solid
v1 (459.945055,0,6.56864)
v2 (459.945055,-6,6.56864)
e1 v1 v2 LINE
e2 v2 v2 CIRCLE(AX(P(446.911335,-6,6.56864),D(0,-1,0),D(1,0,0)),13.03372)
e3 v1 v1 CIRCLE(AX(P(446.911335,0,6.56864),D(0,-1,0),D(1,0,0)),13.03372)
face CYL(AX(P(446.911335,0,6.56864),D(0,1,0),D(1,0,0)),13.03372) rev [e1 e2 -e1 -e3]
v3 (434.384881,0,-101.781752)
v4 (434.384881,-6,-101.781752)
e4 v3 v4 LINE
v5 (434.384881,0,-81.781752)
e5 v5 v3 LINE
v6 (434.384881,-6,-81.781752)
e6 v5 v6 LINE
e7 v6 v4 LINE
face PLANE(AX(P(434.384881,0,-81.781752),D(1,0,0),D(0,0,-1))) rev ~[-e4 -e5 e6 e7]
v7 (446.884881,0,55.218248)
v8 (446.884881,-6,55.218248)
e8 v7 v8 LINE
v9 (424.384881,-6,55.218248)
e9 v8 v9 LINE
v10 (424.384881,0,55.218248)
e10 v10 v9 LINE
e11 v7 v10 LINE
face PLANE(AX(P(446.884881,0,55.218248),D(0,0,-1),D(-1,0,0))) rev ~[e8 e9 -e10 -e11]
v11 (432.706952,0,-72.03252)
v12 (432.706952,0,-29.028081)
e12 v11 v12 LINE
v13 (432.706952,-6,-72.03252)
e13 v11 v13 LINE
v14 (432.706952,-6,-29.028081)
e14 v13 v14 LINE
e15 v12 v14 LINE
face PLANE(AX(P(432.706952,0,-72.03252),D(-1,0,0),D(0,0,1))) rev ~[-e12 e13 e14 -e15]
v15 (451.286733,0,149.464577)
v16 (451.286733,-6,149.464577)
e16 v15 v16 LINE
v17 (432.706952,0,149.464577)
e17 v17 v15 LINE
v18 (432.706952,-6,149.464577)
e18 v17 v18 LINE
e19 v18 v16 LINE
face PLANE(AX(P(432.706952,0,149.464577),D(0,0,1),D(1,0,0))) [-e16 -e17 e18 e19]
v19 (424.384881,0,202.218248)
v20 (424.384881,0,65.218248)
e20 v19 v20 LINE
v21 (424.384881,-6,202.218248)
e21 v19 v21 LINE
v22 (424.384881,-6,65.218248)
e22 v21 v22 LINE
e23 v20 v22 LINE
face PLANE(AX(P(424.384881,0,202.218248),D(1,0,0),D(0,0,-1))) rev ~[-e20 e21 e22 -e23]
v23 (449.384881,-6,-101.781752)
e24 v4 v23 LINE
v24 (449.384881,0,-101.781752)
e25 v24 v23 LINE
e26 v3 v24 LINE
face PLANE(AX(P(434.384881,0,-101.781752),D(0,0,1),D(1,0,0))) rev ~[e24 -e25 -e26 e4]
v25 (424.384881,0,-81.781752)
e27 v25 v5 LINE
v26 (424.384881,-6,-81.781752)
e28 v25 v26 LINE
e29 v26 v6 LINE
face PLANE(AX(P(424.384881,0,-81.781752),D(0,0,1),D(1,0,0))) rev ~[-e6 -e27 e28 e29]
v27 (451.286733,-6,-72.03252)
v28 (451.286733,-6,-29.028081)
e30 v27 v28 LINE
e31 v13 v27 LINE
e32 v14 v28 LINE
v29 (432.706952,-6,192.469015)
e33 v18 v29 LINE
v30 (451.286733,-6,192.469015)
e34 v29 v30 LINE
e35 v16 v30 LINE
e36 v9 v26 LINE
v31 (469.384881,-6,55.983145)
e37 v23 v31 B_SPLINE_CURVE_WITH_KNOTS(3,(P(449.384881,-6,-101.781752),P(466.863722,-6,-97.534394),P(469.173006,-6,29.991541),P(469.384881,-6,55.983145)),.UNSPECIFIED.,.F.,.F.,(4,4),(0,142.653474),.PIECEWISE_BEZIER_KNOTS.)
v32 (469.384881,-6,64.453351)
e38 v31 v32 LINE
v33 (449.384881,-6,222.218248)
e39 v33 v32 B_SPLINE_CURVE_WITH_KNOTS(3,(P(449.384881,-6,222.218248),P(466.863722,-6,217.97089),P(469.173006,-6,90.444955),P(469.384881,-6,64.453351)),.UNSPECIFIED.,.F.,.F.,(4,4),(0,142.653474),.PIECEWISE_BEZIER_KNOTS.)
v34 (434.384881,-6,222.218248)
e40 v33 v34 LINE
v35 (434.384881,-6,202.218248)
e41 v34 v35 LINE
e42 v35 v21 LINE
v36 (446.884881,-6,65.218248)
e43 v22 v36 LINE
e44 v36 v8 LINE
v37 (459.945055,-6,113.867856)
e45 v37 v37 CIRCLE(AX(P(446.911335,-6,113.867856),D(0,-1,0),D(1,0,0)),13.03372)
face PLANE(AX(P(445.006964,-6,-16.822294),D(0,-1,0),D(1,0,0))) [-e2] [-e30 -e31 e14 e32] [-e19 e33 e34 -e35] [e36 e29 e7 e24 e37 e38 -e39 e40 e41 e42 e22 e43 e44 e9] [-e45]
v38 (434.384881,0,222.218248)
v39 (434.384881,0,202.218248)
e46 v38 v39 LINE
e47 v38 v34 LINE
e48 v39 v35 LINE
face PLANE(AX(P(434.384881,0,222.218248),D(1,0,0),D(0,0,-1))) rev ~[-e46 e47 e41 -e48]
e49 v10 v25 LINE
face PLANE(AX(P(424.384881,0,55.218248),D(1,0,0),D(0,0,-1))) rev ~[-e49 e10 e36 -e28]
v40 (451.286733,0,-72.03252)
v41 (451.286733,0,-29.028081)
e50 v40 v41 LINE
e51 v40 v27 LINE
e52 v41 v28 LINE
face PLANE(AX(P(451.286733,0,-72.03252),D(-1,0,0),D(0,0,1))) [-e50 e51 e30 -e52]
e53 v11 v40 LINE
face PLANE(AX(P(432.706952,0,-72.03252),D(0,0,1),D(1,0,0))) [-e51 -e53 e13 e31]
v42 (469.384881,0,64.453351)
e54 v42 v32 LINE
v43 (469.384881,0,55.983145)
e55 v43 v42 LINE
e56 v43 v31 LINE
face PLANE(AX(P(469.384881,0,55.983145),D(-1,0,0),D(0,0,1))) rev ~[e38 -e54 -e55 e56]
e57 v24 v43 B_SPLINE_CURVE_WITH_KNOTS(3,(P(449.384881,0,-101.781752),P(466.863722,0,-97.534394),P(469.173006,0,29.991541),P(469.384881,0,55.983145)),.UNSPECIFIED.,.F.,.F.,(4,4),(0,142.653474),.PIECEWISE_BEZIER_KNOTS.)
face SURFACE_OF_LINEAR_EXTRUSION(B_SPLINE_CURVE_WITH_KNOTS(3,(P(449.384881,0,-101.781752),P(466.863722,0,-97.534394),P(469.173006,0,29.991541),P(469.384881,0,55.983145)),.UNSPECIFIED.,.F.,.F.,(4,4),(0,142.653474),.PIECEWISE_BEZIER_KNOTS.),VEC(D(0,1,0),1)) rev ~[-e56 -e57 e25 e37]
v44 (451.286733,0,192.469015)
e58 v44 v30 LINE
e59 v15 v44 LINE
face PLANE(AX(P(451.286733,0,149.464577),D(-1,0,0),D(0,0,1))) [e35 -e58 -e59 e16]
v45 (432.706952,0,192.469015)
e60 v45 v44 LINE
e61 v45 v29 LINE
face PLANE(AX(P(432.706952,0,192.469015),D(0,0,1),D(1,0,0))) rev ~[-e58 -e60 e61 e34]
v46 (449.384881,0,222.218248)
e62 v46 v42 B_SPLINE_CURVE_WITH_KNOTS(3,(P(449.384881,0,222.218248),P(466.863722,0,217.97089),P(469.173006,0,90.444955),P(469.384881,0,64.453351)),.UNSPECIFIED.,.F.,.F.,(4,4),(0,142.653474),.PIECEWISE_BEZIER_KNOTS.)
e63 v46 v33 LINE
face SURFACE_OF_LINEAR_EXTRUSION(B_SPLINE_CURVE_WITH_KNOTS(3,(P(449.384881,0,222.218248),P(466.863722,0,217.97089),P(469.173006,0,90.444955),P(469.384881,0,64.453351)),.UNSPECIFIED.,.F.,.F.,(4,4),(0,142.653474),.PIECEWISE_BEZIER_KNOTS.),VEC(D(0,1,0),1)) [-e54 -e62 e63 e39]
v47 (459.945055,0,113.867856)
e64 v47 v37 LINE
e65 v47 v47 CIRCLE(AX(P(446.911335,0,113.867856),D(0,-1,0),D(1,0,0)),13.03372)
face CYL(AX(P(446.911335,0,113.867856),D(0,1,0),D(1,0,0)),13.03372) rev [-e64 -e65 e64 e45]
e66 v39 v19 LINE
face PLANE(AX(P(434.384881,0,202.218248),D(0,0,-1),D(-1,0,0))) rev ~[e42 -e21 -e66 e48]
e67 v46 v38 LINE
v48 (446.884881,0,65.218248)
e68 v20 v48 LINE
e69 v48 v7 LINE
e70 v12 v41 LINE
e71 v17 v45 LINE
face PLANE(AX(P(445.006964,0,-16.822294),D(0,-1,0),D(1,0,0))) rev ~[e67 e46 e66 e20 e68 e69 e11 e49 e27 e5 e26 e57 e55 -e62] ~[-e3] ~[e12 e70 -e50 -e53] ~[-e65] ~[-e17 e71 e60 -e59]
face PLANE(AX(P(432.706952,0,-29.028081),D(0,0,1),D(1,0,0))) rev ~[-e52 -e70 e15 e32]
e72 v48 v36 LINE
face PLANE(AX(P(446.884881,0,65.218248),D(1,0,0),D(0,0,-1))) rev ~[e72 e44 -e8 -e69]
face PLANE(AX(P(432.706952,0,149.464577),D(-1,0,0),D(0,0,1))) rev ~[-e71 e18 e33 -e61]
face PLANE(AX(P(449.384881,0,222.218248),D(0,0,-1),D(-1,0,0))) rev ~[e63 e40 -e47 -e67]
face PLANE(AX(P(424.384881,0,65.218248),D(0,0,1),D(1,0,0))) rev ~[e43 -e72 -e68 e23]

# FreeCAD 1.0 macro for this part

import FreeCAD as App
import Part
import Sketcher

V = App.Vector
Q = App.Units.Quantity


def add_polygon(sketch, points):
    """Adds a closed chain of lines whose ends are joined by coincident constraints."""
    first, n = sketch.GeometryCount, len(points)
    for a, b in zip(points, points[1:] + points[:1]):
        sketch.addGeometry(Part.LineSegment(App.Vector(*a, 0), App.Vector(*b, 0)), False)
    for i in range(n):
        sketch.addConstraint(Sketcher.Constraint("Coincident", first + i, 2, first + (i + 1) % n, 1))

doc = App.newDocument("Part")
params = doc.addObject("Spreadsheet::Sheet", "Params")
for row, (alias, value) in enumerate([
    ("sketch1_width", "15 mm"),
    ("sketch1_width2", "10 mm"),
    ("sketch1_height", "20 mm"),
    ("sketch1_width3", "22.5 mm"),
    ("pad1_length", "6 mm"),
], start=1):
    params.set(f"A{row}", alias)
    params.set(f"B{row}", "=" + value)
    params.setAlias(f"B{row}", alias)

body = doc.addObject("PartDesign::Body", "Body")

# Sketch on XZ plane
sketch1 = body.newObject("Sketcher::SketchObject", "Sketch")
sketch1.AttachmentSupport = (doc.getObject("XZ_Plane"), [""])
sketch1.MapMode = "FlatFace"
sketch1.addGeometry(Part.LineSegment(V(469.384881, 55.983145, 0), V(469.384881, 64.453351, 0)), False)  # 0
sketch1.addGeometry(Part.BSplineCurve([V(449.384881, 222.218248, 0), V(466.863722, 217.97089, 0), V(469.173006, 90.444955, 0), V(469.384881, 64.453351, 0)], [4, 4], [0, 142.653474], False, 3, [1, 1, 1, 1], False), False)  # 1
sketch1.addGeometry(Part.LineSegment(V(449.384881, 222.218248, 0), V(434.384881, 222.218248, 0)), False)  # 2
sketch1.addGeometry(Part.LineSegment(V(434.384881, 222.218248, 0), V(434.384881, 202.218248, 0)), False)  # 3
sketch1.addGeometry(Part.LineSegment(V(434.384881, 202.218248, 0), V(424.384881, 202.218248, 0)), False)  # 4
sketch1.addGeometry(Part.LineSegment(V(424.384881, 202.218248, 0), V(424.384881, 65.218248, 0)), False)  # 5
sketch1.addGeometry(Part.LineSegment(V(424.384881, 65.218248, 0), V(446.884881, 65.218248, 0)), False)  # 6
sketch1.addGeometry(Part.LineSegment(V(446.884881, 65.218248, 0), V(446.884881, 55.218248, 0)), False)  # 7
sketch1.addGeometry(Part.LineSegment(V(446.884881, 55.218248, 0), V(424.384881, 55.218248, 0)), False)  # 8
sketch1.addGeometry(Part.LineSegment(V(424.384881, 55.218248, 0), V(424.384881, -81.781752, 0)), False)  # 9
sketch1.addGeometry(Part.LineSegment(V(424.384881, -81.781752, 0), V(434.384881, -81.781752, 0)), False)  # 10
sketch1.addGeometry(Part.LineSegment(V(434.384881, -81.781752, 0), V(434.384881, -101.781752, 0)), False)  # 11
sketch1.addGeometry(Part.LineSegment(V(434.384881, -101.781752, 0), V(449.384881, -101.781752, 0)), False)  # 12
sketch1.addGeometry(Part.BSplineCurve([V(449.384881, -101.781752, 0), V(466.863722, -97.534394, 0), V(469.173006, 29.991541, 0), V(469.384881, 55.983145, 0)], [4, 4], [0, 142.653474], False, 3, [1, 1, 1, 1], False), False)  # 13
add_polygon(sketch1, [(451.286733, -72.03252), (432.706952, -72.03252), (432.706952, -29.028081), (451.286733, -29.028081)])  # lines 14-17
sketch1.addGeometry(Part.Circle(V(446.911335, 6.56864, 0), V(0, 0, 1), 13.03372), False)  # 18
add_polygon(sketch1, [(451.286733, 149.464577), (432.706952, 149.464577), (432.706952, 192.469015), (451.286733, 192.469015)])  # lines 19-22
sketch1.addGeometry(Part.Circle(V(446.911335, 113.867856, 0), V(0, 0, 1), 13.03372), False)  # 23
sketch1.addConstraint([
    Sketcher.Constraint("Block", 1),
    Sketcher.Constraint("Block", 13),
    Sketcher.Constraint("Coincident", 0, 2, 1, 2),
    Sketcher.Constraint("Coincident", 1, 1, 2, 1),
    Sketcher.Constraint("Coincident", 2, 2, 3, 1),
    Sketcher.Constraint("Coincident", 3, 2, 4, 1),
    Sketcher.Constraint("Coincident", 4, 2, 5, 1),
    Sketcher.Constraint("Coincident", 5, 2, 6, 1),
    Sketcher.Constraint("Coincident", 6, 2, 7, 1),
    Sketcher.Constraint("Coincident", 7, 2, 8, 1),
    Sketcher.Constraint("Coincident", 8, 2, 9, 1),
    Sketcher.Constraint("Coincident", 9, 2, 10, 1),
    Sketcher.Constraint("Coincident", 10, 2, 11, 1),
    Sketcher.Constraint("Coincident", 11, 2, 12, 1),
    Sketcher.Constraint("Coincident", 12, 2, 13, 1),
    Sketcher.Constraint("Coincident", 13, 2, 0, 1),
    Sketcher.Constraint("Horizontal", 2),
    Sketcher.Constraint("Vertical", 3),
    Sketcher.Constraint("Horizontal", 4),
    Sketcher.Constraint("Vertical", 5),
    Sketcher.Constraint("Horizontal", 6),
    Sketcher.Constraint("Vertical", 7),
    Sketcher.Constraint("Horizontal", 8),
    Sketcher.Constraint("Vertical", 9),
    Sketcher.Constraint("Horizontal", 10),
    Sketcher.Constraint("Vertical", 11),
    Sketcher.Constraint("Horizontal", 12),
    Sketcher.Constraint("Horizontal", 14),
    Sketcher.Constraint("Vertical", 15),
    Sketcher.Constraint("Horizontal", 16),
    Sketcher.Constraint("Vertical", 17),
    Sketcher.Constraint("Horizontal", 19),
    Sketcher.Constraint("Vertical", 20),
    Sketcher.Constraint("Horizontal", 21),
    Sketcher.Constraint("Vertical", 22),
    Sketcher.Constraint("Equal", 18, 23),
    Sketcher.Constraint("Vertical", 18, 3, 23, 3),
    Sketcher.Constraint("Vertical", 5, 2, 8, 2),
    Sketcher.Constraint("Vertical", 3, 2, 10, 2),
    Sketcher.Constraint("Vertical", 15, 2, 19, 2),
    Sketcher.Constraint("Vertical", 17, 2, 21, 2),
    Sketcher.Constraint("Equal", 10, 7),
    Sketcher.Constraint("Equal", 5, 9),
    Sketcher.Constraint("Equal", 3, 11),
    Sketcher.Constraint("Equal", 17, 20),
    Sketcher.Constraint("DistanceX", 2, 2, 2, 1, Q("15 mm")),
    Sketcher.Constraint("DistanceX", 4, 2, 4, 1, Q("10 mm")),
    Sketcher.Constraint("DistanceY", 3, 2, 3, 1, Q("20 mm")),
    Sketcher.Constraint("DistanceX", 6, 1, 6, 2, Q("22.5 mm")),
    Sketcher.Constraint("Diameter", 18, Q("26.06744 mm")),
    Sketcher.Constraint("DistanceX", 14, 2, 14, 1, Q("18.579781 mm")),
    Sketcher.Constraint("DistanceY", 15, 1, 15, 2, Q("43.004439 mm")),
    Sketcher.Constraint("DistanceY", -1, 1, 18, 3, Q("6.56864 mm")),
    Sketcher.Constraint("DistanceX", -1, 1, 14, 2, Q("432.706952 mm")),
    Sketcher.Constraint("DistanceY", 14, 2, -1, 1, Q("72.03252 mm")),
    Sketcher.Constraint("DistanceY", 23, 3, 2, 2, Q("108.350392 mm")),
    Sketcher.Constraint("DistanceY", 23, 3, 19, 2, Q("35.596721 mm")),
    Sketcher.Constraint("DistanceX", -1, 1, 18, 3, Q("446.911335 mm")),
])
sketch1.setExpression("Constraints[53]", "Params.sketch1_width")
sketch1.setExpression("Constraints[54]", "Params.sketch1_width2")
sketch1.setExpression("Constraints[55]", "Params.sketch1_height")
sketch1.setExpression("Constraints[56]", "Params.sketch1_width3")
pad1 = body.newObject("PartDesign::Pad", "Pad")
pad1.Profile = sketch1
pad1.setExpression("Length", "Params.pad1_length")

doc.recompute()
